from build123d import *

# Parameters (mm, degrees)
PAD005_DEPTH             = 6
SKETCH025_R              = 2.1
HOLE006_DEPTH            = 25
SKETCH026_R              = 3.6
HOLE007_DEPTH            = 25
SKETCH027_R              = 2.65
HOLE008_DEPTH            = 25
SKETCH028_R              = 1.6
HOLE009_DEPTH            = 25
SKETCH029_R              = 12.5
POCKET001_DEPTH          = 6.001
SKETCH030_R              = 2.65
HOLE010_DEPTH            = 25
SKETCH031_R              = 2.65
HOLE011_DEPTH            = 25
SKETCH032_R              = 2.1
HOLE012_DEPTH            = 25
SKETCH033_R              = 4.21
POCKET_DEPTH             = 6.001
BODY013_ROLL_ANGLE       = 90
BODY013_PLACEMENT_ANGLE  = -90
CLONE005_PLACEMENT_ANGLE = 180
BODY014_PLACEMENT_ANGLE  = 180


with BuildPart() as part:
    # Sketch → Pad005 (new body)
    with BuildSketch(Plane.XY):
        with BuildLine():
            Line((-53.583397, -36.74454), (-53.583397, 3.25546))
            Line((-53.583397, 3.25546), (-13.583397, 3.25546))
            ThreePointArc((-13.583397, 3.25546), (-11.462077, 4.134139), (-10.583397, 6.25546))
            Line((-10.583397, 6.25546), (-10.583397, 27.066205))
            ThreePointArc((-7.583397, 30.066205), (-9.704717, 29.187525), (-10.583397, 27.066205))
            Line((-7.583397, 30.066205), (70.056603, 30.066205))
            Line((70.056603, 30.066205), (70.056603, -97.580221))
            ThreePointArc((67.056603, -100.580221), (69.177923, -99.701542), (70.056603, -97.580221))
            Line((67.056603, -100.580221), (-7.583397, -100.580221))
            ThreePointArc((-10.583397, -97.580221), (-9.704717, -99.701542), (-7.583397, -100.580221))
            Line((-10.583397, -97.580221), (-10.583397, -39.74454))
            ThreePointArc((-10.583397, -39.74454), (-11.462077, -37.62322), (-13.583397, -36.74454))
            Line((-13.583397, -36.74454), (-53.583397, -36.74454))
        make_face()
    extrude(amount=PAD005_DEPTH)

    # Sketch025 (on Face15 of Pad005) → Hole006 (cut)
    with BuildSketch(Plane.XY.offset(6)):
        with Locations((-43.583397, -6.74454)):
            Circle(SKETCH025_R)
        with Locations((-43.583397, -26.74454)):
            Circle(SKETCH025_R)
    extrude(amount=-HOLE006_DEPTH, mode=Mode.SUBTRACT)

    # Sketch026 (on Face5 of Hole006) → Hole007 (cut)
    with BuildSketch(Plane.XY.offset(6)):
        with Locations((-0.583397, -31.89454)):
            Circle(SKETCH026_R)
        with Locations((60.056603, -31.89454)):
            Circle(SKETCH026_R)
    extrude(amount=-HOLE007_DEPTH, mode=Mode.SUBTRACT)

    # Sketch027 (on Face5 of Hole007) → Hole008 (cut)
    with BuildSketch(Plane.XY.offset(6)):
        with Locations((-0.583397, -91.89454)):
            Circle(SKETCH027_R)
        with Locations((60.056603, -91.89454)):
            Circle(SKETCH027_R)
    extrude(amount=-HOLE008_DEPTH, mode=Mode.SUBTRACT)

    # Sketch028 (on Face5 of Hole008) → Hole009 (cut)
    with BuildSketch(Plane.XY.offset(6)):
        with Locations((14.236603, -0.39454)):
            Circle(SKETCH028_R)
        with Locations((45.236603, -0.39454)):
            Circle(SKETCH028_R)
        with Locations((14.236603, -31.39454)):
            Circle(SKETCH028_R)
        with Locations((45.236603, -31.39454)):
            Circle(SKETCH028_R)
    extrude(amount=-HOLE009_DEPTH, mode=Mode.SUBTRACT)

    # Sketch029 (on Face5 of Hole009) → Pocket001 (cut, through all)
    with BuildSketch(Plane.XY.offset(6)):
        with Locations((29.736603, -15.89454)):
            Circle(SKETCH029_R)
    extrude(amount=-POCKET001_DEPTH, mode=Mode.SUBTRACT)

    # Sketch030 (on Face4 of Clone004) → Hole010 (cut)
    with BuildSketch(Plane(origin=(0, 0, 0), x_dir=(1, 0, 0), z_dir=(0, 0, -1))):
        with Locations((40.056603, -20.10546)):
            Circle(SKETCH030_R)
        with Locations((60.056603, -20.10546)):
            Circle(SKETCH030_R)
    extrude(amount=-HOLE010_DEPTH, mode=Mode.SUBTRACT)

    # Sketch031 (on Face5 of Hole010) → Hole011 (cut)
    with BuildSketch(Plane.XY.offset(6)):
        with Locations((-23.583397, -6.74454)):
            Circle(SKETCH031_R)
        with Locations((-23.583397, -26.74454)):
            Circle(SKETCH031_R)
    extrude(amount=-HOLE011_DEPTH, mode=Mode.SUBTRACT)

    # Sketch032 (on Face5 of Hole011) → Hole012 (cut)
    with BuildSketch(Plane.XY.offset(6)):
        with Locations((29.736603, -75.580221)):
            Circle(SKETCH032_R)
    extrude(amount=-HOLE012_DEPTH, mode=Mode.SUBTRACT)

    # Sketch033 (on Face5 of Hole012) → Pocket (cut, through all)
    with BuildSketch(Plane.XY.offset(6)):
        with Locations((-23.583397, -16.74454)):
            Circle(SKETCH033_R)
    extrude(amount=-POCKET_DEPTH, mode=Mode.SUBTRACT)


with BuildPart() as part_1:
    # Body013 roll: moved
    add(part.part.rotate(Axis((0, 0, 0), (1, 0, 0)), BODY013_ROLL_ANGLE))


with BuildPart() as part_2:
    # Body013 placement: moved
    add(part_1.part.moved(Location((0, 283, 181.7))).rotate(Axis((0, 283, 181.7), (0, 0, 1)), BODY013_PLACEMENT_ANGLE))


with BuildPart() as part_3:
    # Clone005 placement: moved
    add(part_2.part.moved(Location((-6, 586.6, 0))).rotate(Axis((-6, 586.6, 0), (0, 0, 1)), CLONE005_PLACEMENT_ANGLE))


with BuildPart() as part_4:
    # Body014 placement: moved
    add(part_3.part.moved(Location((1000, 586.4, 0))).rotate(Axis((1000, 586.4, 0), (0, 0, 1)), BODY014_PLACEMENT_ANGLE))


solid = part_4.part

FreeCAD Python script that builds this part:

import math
import FreeCAD as App
import Part
import Sketcher
from FreeCAD import Vector
Q = App.Units.Quantity

doc = App.newDocument("Part")
params = doc.addObject("Spreadsheet::Sheet", "Params")
for row, (alias, value) in enumerate([
    ("sketch1_radius", "3.000001 mm"),
    ("sketch1_width", "40 mm"),
    ("sketch1_width2", "74.64 mm"),
    ("pad1_length", "6 mm"),
    ("sketch2_diameter", "4.2 mm"),
    ("pocket1_length", "25 mm"),
    ("sketch3_diameter", "7.2 mm"),
    ("pocket2_length", "25 mm"),
    ("sketch4_diameter", "5.3 mm"),
    ("pocket3_length", "25 mm"),
    ("sketch5_diameter", "3.2 mm"),
    ("pocket4_length", "25 mm"),
    ("sketch6_diameter", "25 mm"),
    ("sketch7_diameter", "5.3 mm"),
    ("pocket6_length", "25 mm"),
    ("sketch8_diameter", "5.3 mm"),
    ("pocket7_length", "25 mm"),
    ("sketch9_diameter", "4.2 mm"),
    ("pocket8_length", "25 mm"),
    ("sketch10_diameter", "8.42 mm"),
], start=1):
    params.set(f"A{row}", alias)
    params.set(f"B{row}", "=" + value)
    params.setAlias(f"B{row}", alias)

body = doc.addObject("PartDesign::Body", "Body")

sketch1 = doc.addObject("Sketcher::SketchObject", "Sketch")
body.addObject(sketch1)
sketch1.AttachmentSupport = (doc.XY_Plane, [""])
sketch1.MapMode = "FlatFace"
sketch1.addGeometry(Part.LineSegment(Vector(-53.6, 3.3, 0), Vector(-53.6, -36.7, 0)), False)
sketch1.addGeometry(Part.LineSegment(Vector(-53.6, -36.7, 0), Vector(-13.6, -36.7, 0)), False)
sketch1.addGeometry(Part.ArcOfCircle(Part.Circle(Vector(-13.6, -39.7, 0), Vector(0, 0, 1), 3), math.radians(0), math.radians(90)), False)
sketch1.addGeometry(Part.LineSegment(Vector(-10.6, -39.7, 0), Vector(-10.6, -97.6, 0)), False)
sketch1.addGeometry(Part.ArcOfCircle(Part.Circle(Vector(-7.6, -97.6, 0), Vector(0, 0, 1), 3), math.radians(180), math.radians(270)), False)
sketch1.addGeometry(Part.LineSegment(Vector(-7.6, -100.6, 0), Vector(67.1, -100.6, 0)), False)
sketch1.addGeometry(Part.ArcOfCircle(Part.Circle(Vector(67.1, -97.6, 0), Vector(0, 0, 1), 3), math.radians(-90), math.radians(0)), False)
sketch1.addGeometry(Part.LineSegment(Vector(70.1, -97.6, 0), Vector(70.1, 30.1, 0)), False)
sketch1.addGeometry(Part.LineSegment(Vector(70.1, 30.1, 0), Vector(-7.6, 30.1, 0)), False)
sketch1.addGeometry(Part.ArcOfCircle(Part.Circle(Vector(-7.6, 27.1, 0), Vector(0, 0, 1), 3), math.radians(90), math.radians(180)), False)
sketch1.addGeometry(Part.LineSegment(Vector(-10.6, 27.1, 0), Vector(-10.6, 6.3, 0)), False)
sketch1.addGeometry(Part.ArcOfCircle(Part.Circle(Vector(-13.6, 6.3, 0), Vector(0, 0, 1), 3), math.radians(-90), math.radians(0)), False)
sketch1.addGeometry(Part.LineSegment(Vector(-13.6, 3.3, 0), Vector(-53.6, 3.3, 0)), False)
sketch1.addConstraint(Sketcher.Constraint("Coincident", 0, 2, 1, 1))
sketch1.addConstraint(Sketcher.Constraint("Tangent", 1, 2, 2, 2))
sketch1.addConstraint(Sketcher.Constraint("Tangent", 2, 1, 3, 1))
sketch1.addConstraint(Sketcher.Constraint("Tangent", 3, 2, 4, 1))
sketch1.addConstraint(Sketcher.Constraint("Tangent", 4, 2, 5, 1))
sketch1.addConstraint(Sketcher.Constraint("Tangent", 5, 2, 6, 1))
sketch1.addConstraint(Sketcher.Constraint("Tangent", 6, 2, 7, 1))
sketch1.addConstraint(Sketcher.Constraint("Coincident", 7, 2, 8, 1))
sketch1.addConstraint(Sketcher.Constraint("Tangent", 8, 2, 9, 1))
sketch1.addConstraint(Sketcher.Constraint("Tangent", 9, 2, 10, 1))
sketch1.addConstraint(Sketcher.Constraint("Tangent", 10, 2, 11, 2))
sketch1.addConstraint(Sketcher.Constraint("Tangent", 11, 1, 12, 1))
sketch1.addConstraint(Sketcher.Constraint("Coincident", 12, 2, 0, 1))
sketch1.addConstraint(Sketcher.Constraint("Vertical", 0))
sketch1.addConstraint(Sketcher.Constraint("Horizontal", 1))
sketch1.addConstraint(Sketcher.Constraint("Vertical", 3))
sketch1.addConstraint(Sketcher.Constraint("Horizontal", 5))
sketch1.addConstraint(Sketcher.Constraint("Vertical", 7))
sketch1.addConstraint(Sketcher.Constraint("Horizontal", 8))
sketch1.addConstraint(Sketcher.Constraint("Vertical", 10))
sketch1.addConstraint(Sketcher.Constraint("Horizontal", 12))
sketch1.addConstraint(Sketcher.Constraint("Equal", 2, 4))
sketch1.addConstraint(Sketcher.Constraint("Equal", 4, 6))
sketch1.addConstraint(Sketcher.Constraint("Equal", 6, 9))
sketch1.addConstraint(Sketcher.Constraint("Equal", 9, 11))
sketch1.addConstraint(Sketcher.Constraint("Vertical", 4, 3, 9, 3))
sketch1.addConstraint(Sketcher.Constraint("Equal", 12, 0))
sketch1.addConstraint(Sketcher.Constraint("Radius", 2, Q("3.000001 mm")))
sketch1.addConstraint(Sketcher.Constraint("DistanceX", 1, 1, 1, 2, Q("40 mm")))
sketch1.addConstraint(Sketcher.Constraint("DistanceX", 5, 1, 5, 2, Q("74.64 mm")))
sketch1.addConstraint(Sketcher.Constraint("DistanceY", 3, 2, 3, 1, Q("57.835681 mm")))
sketch1.addConstraint(Sketcher.Constraint("DistanceX", 2, 3, -1, 1, Q("13.583398 mm")))
sketch1.addConstraint(Sketcher.Constraint("DistanceY", 7, 1, 7, 2, Q("127.646426 mm")))
sketch1.addConstraint(Sketcher.Constraint("DistanceY", 2, 3, -1, 1, Q("39.744541 mm")))
sketch1.setExpression("Constraints[27]", "Params.sketch1_radius")
sketch1.setExpression("Constraints[28]", "Params.sketch1_width")
sketch1.setExpression("Constraints[29]", "Params.sketch1_width2")
pad1 = doc.addObject("PartDesign::Pad", "Pad")
body.addObject(pad1)
pad1.Profile = sketch1
pad1.setExpression("Length", "Params.pad1_length")

sketch2 = doc.addObject("Sketcher::SketchObject", "Sketch001")
body.addObject(sketch2)
sketch2.AttachmentSupport = (doc.XY_Plane, [""])
sketch2.MapMode = "FlatFace"
sketch2.AttachmentOffset = App.Placement(Vector(0, 0, 6), App.Rotation())
sketch2.addGeometry(Part.Circle(Vector(-43.6, -6.7, 0), Vector(0, 0, 1), 2.1), False)
sketch2.addGeometry(Part.Circle(Vector(-43.6, -26.7, 0), Vector(0, 0, 1), 2.1), False)
sketch2.addConstraint(Sketcher.Constraint("Equal", 0, 1))
sketch2.addConstraint(Sketcher.Constraint("Vertical", 0, 3, 1, 3))
sketch2.addConstraint(Sketcher.Constraint("Diameter", 0, Q("4.2 mm")))
sketch2.addConstraint(Sketcher.Constraint("DistanceY", 1, 3, 0, 3, Q("20 mm")))
sketch2.addConstraint(Sketcher.Constraint("DistanceY", 0, 3, -1, 1, Q("6.74454 mm")))
sketch2.addConstraint(Sketcher.Constraint("DistanceX", 0, 3, -1, 1, Q("43.583397 mm")))
sketch2.setExpression("Constraints[2]", "Params.sketch2_diameter")
pocket1 = doc.addObject("PartDesign::Pocket", "Pocket")
body.addObject(pocket1)
pocket1.Profile = sketch2
pocket1.setExpression("Length", "Params.pocket1_length")

sketch3 = doc.addObject("Sketcher::SketchObject", "Sketch002")
body.addObject(sketch3)
sketch3.AttachmentSupport = (doc.XY_Plane, [""])
sketch3.MapMode = "FlatFace"
sketch3.AttachmentOffset = App.Placement(Vector(0, 0, 6), App.Rotation())
sketch3.addGeometry(Part.Circle(Vector(-0.6, -31.9, 0), Vector(0, 0, 1), 3.6), False)
sketch3.addGeometry(Part.Circle(Vector(60.1, -31.9, 0), Vector(0, 0, 1), 3.6), False)
sketch3.addConstraint(Sketcher.Constraint("Equal", 0, 1))
sketch3.addConstraint(Sketcher.Constraint("Horizontal", 0, 3, 1, 3))
sketch3.addConstraint(Sketcher.Constraint("Diameter", 0, Q("7.2 mm")))
sketch3.addConstraint(Sketcher.Constraint("DistanceX", 0, 3, 1, 3, Q("60.64 mm")))
sketch3.addConstraint(Sketcher.Constraint("DistanceY", 0, 3, -1, 1, Q("31.89454 mm")))
sketch3.addConstraint(Sketcher.Constraint("DistanceX", 0, 3, -1, 1, Q("0.583397 mm")))
sketch3.setExpression("Constraints[2]", "Params.sketch3_diameter")
pocket2 = doc.addObject("PartDesign::Pocket", "Pocket001")
body.addObject(pocket2)
pocket2.Profile = sketch3
pocket2.setExpression("Length", "Params.pocket2_length")

sketch4 = doc.addObject("Sketcher::SketchObject", "Sketch003")
body.addObject(sketch4)
sketch4.AttachmentSupport = (doc.XY_Plane, [""])
sketch4.MapMode = "FlatFace"
sketch4.AttachmentOffset = App.Placement(Vector(0, 0, 6), App.Rotation())
sketch4.addGeometry(Part.Circle(Vector(-0.6, -91.9, 0), Vector(0, 0, 1), 2.6), False)
sketch4.addGeometry(Part.Circle(Vector(60.1, -91.9, 0), Vector(0, 0, 1), 2.6), False)
sketch4.addConstraint(Sketcher.Constraint("Equal", 0, 1))
sketch4.addConstraint(Sketcher.Constraint("Horizontal", 0, 3, 1, 3))
sketch4.addConstraint(Sketcher.Constraint("Diameter", 0, Q("5.3 mm")))
sketch4.addConstraint(Sketcher.Constraint("DistanceX", 0, 3, 1, 3, Q("60.64 mm")))
sketch4.addConstraint(Sketcher.Constraint("DistanceY", 0, 3, -1, 1, Q("91.89454 mm")))
sketch4.addConstraint(Sketcher.Constraint("DistanceX", 0, 3, -1, 1, Q("0.583397 mm")))
sketch4.setExpression("Constraints[2]", "Params.sketch4_diameter")
pocket3 = doc.addObject("PartDesign::Pocket", "Pocket002")
body.addObject(pocket3)
pocket3.Profile = sketch4
pocket3.setExpression("Length", "Params.pocket3_length")

sketch5 = doc.addObject("Sketcher::SketchObject", "Sketch004")
body.addObject(sketch5)
sketch5.AttachmentSupport = (doc.XY_Plane, [""])
sketch5.MapMode = "FlatFace"
sketch5.AttachmentOffset = App.Placement(Vector(0, 0, 6), App.Rotation())
sketch5.addGeometry(Part.Circle(Vector(14.2, -0.4, 0), Vector(0, 0, 1), 1.6), False)
sketch5.addGeometry(Part.Circle(Vector(45.2, -0.4, 0), Vector(0, 0, 1), 1.6), False)
sketch5.addGeometry(Part.Circle(Vector(14.2, -31.4, 0), Vector(0, 0, 1), 1.6), False)
sketch5.addGeometry(Part.Circle(Vector(45.2, -31.4, 0), Vector(0, 0, 1), 1.6), False)
sketch5.addConstraint(Sketcher.Constraint("Equal", 0, 1))
sketch5.addConstraint(Sketcher.Constraint("Equal", 1, 2))
sketch5.addConstraint(Sketcher.Constraint("Equal", 2, 3))
sketch5.addConstraint(Sketcher.Constraint("Horizontal", 0, 3, 1, 3))
sketch5.addConstraint(Sketcher.Constraint("Horizontal", 2, 3, 3, 3))
sketch5.addConstraint(Sketcher.Constraint("Vertical", 0, 3, 2, 3))
sketch5.addConstraint(Sketcher.Constraint("Vertical", 1, 3, 3, 3))
sketch5.addConstraint(Sketcher.Constraint("Diameter", 0, Q("3.2 mm")))
sketch5.addConstraint(Sketcher.Constraint("DistanceX", 0, 3, 1, 3, Q("31 mm")))
sketch5.addConstraint(Sketcher.Constraint("DistanceY", 2, 3, 0, 3, Q("31 mm")))
sketch5.addConstraint(Sketcher.Constraint("DistanceY", 0, 3, -1, 1, Q("0.39454 mm")))
sketch5.addConstraint(Sketcher.Constraint("DistanceX", -1, 1, 0, 3, Q("14.236603 mm")))
sketch5.setExpression("Constraints[7]", "Params.sketch5_diameter")
pocket4 = doc.addObject("PartDesign::Pocket", "Pocket003")
body.addObject(pocket4)
pocket4.Profile = sketch5
pocket4.setExpression("Length", "Params.pocket4_length")

sketch6 = doc.addObject("Sketcher::SketchObject", "Sketch005")
body.addObject(sketch6)
sketch6.AttachmentSupport = (doc.XY_Plane, [""])
sketch6.MapMode = "FlatFace"
sketch6.AttachmentOffset = App.Placement(Vector(0, 0, 6), App.Rotation())
sketch6.addGeometry(Part.Circle(Vector(30, -16, 0), Vector(0, 0, 1), 12), False)
sketch6.addConstraint(Sketcher.Constraint("Diameter", 0, Q("25 mm")))
sketch6.addConstraint(Sketcher.Constraint("DistanceY", 0, 3, -1, 1, Q("15.89454 mm")))
sketch6.addConstraint(Sketcher.Constraint("DistanceX", -1, 1, 0, 3, Q("29.736603 mm")))
sketch6.setExpression("Constraints[0]", "Params.sketch6_diameter")
pocket5 = doc.addObject("PartDesign::Pocket", "Pocket004")
body.addObject(pocket5)
pocket5.Profile = sketch6
pocket5.Type = "ThroughAll"

sketch7 = doc.addObject("Sketcher::SketchObject", "Sketch006")
body.addObject(sketch7)
sketch7.AttachmentSupport = (doc.XY_Plane, [""])
sketch7.MapMode = "FlatFace"
sketch7.addGeometry(Part.Circle(Vector(40.1, 20.1, 0), Vector(0, 0, 1), 2.6), False)
sketch7.addGeometry(Part.Circle(Vector(60.1, 20.1, 0), Vector(0, 0, 1), 2.6), False)
sketch7.addConstraint(Sketcher.Constraint("Equal", 0, 1))
sketch7.addConstraint(Sketcher.Constraint("Horizontal", 0, 3, 1, 3))
sketch7.addConstraint(Sketcher.Constraint("Diameter", 0, Q("5.3 mm")))
sketch7.addConstraint(Sketcher.Constraint("DistanceX", 0, 3, 1, 3, Q("20 mm")))
sketch7.addConstraint(Sketcher.Constraint("DistanceY", -1, 1, 0, 3, Q("20.10546 mm")))
sketch7.addConstraint(Sketcher.Constraint("DistanceX", -1, 1, 0, 3, Q("40.056603 mm")))
sketch7.setExpression("Constraints[2]", "Params.sketch7_diameter")
pocket6 = doc.addObject("PartDesign::Pocket", "Pocket005")
body.addObject(pocket6)
pocket6.Profile = sketch7
pocket6.setExpression("Length", "Params.pocket6_length")
pocket6.Reversed = True

sketch8 = doc.addObject("Sketcher::SketchObject", "Sketch007")
body.addObject(sketch8)
sketch8.AttachmentSupport = (doc.XY_Plane, [""])
sketch8.MapMode = "FlatFace"
sketch8.AttachmentOffset = App.Placement(Vector(0, 0, 6), App.Rotation())
sketch8.addGeometry(Part.Circle(Vector(-23.6, -6.7, 0), Vector(0, 0, 1), 2.6), False)
sketch8.addGeometry(Part.Circle(Vector(-23.6, -26.7, 0), Vector(0, 0, 1), 2.6), False)
sketch8.addConstraint(Sketcher.Constraint("Equal", 0, 1))
sketch8.addConstraint(Sketcher.Constraint("Vertical", 0, 3, 1, 3))
sketch8.addConstraint(Sketcher.Constraint("Diameter", 0, Q("5.3 mm")))
sketch8.addConstraint(Sketcher.Constraint("DistanceY", 1, 3, 0, 3, Q("20 mm")))
sketch8.addConstraint(Sketcher.Constraint("DistanceY", 0, 3, -1, 1, Q("6.74454 mm")))
sketch8.addConstraint(Sketcher.Constraint("DistanceX", 0, 3, -1, 1, Q("23.583397 mm")))
sketch8.setExpression("Constraints[2]", "Params.sketch8_diameter")
pocket7 = doc.addObject("PartDesign::Pocket", "Pocket006")
body.addObject(pocket7)
pocket7.Profile = sketch8
pocket7.setExpression("Length", "Params.pocket7_length")

sketch9 = doc.addObject("Sketcher::SketchObject", "Sketch008")
body.addObject(sketch9)
sketch9.AttachmentSupport = (doc.XY_Plane, [""])
sketch9.MapMode = "FlatFace"
sketch9.AttachmentOffset = App.Placement(Vector(0, 0, 6), App.Rotation())
sketch9.addGeometry(Part.Circle(Vector(29.7, -75.6, 0), Vector(0, 0, 1), 2.1), False)
sketch9.addConstraint(Sketcher.Constraint("Diameter", 0, Q("4.2 mm")))
sketch9.addConstraint(Sketcher.Constraint("DistanceY", 0, 3, -1, 1, Q("75.580221 mm")))
sketch9.addConstraint(Sketcher.Constraint("DistanceX", -1, 1, 0, 3, Q("29.736603 mm")))
sketch9.setExpression("Constraints[0]", "Params.sketch9_diameter")
pocket8 = doc.addObject("PartDesign::Pocket", "Pocket007")
body.addObject(pocket8)
pocket8.Profile = sketch9
pocket8.setExpression("Length", "Params.pocket8_length")

sketch10 = doc.addObject("Sketcher::SketchObject", "Sketch009")
body.addObject(sketch10)
sketch10.AttachmentSupport = (doc.XY_Plane, [""])
sketch10.MapMode = "FlatFace"
sketch10.AttachmentOffset = App.Placement(Vector(0, 0, 6), App.Rotation())
sketch10.addGeometry(Part.Circle(Vector(-23.6, -16.7, 0), Vector(0, 0, 1), 4.2), False)
sketch10.addConstraint(Sketcher.Constraint("Diameter", 0, Q("8.42 mm")))
sketch10.addConstraint(Sketcher.Constraint("DistanceY", 0, 3, -1, 1, Q("16.74454 mm")))
sketch10.addConstraint(Sketcher.Constraint("DistanceX", 0, 3, -1, 1, Q("23.583397 mm")))
sketch10.setExpression("Constraints[0]", "Params.sketch10_diameter")
pocket9 = doc.addObject("PartDesign::Pocket", "Pocket008")
body.addObject(pocket9)
pocket9.Profile = sketch10
pocket9.Type = "ThroughAll"
body2 = doc.addObject("PartDesign::Body", "Body001")
doc.recompute()

body.Placement = App.Placement(Vector(0, 0, 0), App.Rotation(Vector(1, 0, 0), 90))
boolean = doc.addObject("PartDesign::Boolean", "Boolean")
body2.addObject(boolean)
boolean.Type = "Fuse"
boolean.addObjects([body])
body3 = doc.addObject("PartDesign::Body", "Body002")
doc.recompute()

body2.Placement = App.Placement(Vector(0, 283, 181.7), App.Rotation(Vector(0, 0, 1), 270))
boolean2 = doc.addObject("PartDesign::Boolean", "Boolean001")
body3.addObject(boolean2)
boolean2.Type = "Fuse"
boolean2.addObjects([body2])
body4 = doc.addObject("PartDesign::Body", "Body003")
doc.recompute()

body3.Placement = App.Placement(Vector(-6, 586.6, 0), App.Rotation(Vector(0, 0, 1), 180))
boolean3 = doc.addObject("PartDesign::Boolean", "Boolean002")
body4.addObject(boolean3)
boolean3.Type = "Fuse"
boolean3.addObjects([body3])
body5 = doc.addObject("PartDesign::Body", "Body004")
doc.recompute()

body4.Placement = App.Placement(Vector(1000, 586.4, 0), App.Rotation(Vector(0, 0, 1), 180))
boolean4 = doc.addObject("PartDesign::Boolean", "Boolean003")
body5.addObject(boolean4)
boolean4.Type = "Fuse"
boolean4.addObjects([body4])

doc.recompute()
